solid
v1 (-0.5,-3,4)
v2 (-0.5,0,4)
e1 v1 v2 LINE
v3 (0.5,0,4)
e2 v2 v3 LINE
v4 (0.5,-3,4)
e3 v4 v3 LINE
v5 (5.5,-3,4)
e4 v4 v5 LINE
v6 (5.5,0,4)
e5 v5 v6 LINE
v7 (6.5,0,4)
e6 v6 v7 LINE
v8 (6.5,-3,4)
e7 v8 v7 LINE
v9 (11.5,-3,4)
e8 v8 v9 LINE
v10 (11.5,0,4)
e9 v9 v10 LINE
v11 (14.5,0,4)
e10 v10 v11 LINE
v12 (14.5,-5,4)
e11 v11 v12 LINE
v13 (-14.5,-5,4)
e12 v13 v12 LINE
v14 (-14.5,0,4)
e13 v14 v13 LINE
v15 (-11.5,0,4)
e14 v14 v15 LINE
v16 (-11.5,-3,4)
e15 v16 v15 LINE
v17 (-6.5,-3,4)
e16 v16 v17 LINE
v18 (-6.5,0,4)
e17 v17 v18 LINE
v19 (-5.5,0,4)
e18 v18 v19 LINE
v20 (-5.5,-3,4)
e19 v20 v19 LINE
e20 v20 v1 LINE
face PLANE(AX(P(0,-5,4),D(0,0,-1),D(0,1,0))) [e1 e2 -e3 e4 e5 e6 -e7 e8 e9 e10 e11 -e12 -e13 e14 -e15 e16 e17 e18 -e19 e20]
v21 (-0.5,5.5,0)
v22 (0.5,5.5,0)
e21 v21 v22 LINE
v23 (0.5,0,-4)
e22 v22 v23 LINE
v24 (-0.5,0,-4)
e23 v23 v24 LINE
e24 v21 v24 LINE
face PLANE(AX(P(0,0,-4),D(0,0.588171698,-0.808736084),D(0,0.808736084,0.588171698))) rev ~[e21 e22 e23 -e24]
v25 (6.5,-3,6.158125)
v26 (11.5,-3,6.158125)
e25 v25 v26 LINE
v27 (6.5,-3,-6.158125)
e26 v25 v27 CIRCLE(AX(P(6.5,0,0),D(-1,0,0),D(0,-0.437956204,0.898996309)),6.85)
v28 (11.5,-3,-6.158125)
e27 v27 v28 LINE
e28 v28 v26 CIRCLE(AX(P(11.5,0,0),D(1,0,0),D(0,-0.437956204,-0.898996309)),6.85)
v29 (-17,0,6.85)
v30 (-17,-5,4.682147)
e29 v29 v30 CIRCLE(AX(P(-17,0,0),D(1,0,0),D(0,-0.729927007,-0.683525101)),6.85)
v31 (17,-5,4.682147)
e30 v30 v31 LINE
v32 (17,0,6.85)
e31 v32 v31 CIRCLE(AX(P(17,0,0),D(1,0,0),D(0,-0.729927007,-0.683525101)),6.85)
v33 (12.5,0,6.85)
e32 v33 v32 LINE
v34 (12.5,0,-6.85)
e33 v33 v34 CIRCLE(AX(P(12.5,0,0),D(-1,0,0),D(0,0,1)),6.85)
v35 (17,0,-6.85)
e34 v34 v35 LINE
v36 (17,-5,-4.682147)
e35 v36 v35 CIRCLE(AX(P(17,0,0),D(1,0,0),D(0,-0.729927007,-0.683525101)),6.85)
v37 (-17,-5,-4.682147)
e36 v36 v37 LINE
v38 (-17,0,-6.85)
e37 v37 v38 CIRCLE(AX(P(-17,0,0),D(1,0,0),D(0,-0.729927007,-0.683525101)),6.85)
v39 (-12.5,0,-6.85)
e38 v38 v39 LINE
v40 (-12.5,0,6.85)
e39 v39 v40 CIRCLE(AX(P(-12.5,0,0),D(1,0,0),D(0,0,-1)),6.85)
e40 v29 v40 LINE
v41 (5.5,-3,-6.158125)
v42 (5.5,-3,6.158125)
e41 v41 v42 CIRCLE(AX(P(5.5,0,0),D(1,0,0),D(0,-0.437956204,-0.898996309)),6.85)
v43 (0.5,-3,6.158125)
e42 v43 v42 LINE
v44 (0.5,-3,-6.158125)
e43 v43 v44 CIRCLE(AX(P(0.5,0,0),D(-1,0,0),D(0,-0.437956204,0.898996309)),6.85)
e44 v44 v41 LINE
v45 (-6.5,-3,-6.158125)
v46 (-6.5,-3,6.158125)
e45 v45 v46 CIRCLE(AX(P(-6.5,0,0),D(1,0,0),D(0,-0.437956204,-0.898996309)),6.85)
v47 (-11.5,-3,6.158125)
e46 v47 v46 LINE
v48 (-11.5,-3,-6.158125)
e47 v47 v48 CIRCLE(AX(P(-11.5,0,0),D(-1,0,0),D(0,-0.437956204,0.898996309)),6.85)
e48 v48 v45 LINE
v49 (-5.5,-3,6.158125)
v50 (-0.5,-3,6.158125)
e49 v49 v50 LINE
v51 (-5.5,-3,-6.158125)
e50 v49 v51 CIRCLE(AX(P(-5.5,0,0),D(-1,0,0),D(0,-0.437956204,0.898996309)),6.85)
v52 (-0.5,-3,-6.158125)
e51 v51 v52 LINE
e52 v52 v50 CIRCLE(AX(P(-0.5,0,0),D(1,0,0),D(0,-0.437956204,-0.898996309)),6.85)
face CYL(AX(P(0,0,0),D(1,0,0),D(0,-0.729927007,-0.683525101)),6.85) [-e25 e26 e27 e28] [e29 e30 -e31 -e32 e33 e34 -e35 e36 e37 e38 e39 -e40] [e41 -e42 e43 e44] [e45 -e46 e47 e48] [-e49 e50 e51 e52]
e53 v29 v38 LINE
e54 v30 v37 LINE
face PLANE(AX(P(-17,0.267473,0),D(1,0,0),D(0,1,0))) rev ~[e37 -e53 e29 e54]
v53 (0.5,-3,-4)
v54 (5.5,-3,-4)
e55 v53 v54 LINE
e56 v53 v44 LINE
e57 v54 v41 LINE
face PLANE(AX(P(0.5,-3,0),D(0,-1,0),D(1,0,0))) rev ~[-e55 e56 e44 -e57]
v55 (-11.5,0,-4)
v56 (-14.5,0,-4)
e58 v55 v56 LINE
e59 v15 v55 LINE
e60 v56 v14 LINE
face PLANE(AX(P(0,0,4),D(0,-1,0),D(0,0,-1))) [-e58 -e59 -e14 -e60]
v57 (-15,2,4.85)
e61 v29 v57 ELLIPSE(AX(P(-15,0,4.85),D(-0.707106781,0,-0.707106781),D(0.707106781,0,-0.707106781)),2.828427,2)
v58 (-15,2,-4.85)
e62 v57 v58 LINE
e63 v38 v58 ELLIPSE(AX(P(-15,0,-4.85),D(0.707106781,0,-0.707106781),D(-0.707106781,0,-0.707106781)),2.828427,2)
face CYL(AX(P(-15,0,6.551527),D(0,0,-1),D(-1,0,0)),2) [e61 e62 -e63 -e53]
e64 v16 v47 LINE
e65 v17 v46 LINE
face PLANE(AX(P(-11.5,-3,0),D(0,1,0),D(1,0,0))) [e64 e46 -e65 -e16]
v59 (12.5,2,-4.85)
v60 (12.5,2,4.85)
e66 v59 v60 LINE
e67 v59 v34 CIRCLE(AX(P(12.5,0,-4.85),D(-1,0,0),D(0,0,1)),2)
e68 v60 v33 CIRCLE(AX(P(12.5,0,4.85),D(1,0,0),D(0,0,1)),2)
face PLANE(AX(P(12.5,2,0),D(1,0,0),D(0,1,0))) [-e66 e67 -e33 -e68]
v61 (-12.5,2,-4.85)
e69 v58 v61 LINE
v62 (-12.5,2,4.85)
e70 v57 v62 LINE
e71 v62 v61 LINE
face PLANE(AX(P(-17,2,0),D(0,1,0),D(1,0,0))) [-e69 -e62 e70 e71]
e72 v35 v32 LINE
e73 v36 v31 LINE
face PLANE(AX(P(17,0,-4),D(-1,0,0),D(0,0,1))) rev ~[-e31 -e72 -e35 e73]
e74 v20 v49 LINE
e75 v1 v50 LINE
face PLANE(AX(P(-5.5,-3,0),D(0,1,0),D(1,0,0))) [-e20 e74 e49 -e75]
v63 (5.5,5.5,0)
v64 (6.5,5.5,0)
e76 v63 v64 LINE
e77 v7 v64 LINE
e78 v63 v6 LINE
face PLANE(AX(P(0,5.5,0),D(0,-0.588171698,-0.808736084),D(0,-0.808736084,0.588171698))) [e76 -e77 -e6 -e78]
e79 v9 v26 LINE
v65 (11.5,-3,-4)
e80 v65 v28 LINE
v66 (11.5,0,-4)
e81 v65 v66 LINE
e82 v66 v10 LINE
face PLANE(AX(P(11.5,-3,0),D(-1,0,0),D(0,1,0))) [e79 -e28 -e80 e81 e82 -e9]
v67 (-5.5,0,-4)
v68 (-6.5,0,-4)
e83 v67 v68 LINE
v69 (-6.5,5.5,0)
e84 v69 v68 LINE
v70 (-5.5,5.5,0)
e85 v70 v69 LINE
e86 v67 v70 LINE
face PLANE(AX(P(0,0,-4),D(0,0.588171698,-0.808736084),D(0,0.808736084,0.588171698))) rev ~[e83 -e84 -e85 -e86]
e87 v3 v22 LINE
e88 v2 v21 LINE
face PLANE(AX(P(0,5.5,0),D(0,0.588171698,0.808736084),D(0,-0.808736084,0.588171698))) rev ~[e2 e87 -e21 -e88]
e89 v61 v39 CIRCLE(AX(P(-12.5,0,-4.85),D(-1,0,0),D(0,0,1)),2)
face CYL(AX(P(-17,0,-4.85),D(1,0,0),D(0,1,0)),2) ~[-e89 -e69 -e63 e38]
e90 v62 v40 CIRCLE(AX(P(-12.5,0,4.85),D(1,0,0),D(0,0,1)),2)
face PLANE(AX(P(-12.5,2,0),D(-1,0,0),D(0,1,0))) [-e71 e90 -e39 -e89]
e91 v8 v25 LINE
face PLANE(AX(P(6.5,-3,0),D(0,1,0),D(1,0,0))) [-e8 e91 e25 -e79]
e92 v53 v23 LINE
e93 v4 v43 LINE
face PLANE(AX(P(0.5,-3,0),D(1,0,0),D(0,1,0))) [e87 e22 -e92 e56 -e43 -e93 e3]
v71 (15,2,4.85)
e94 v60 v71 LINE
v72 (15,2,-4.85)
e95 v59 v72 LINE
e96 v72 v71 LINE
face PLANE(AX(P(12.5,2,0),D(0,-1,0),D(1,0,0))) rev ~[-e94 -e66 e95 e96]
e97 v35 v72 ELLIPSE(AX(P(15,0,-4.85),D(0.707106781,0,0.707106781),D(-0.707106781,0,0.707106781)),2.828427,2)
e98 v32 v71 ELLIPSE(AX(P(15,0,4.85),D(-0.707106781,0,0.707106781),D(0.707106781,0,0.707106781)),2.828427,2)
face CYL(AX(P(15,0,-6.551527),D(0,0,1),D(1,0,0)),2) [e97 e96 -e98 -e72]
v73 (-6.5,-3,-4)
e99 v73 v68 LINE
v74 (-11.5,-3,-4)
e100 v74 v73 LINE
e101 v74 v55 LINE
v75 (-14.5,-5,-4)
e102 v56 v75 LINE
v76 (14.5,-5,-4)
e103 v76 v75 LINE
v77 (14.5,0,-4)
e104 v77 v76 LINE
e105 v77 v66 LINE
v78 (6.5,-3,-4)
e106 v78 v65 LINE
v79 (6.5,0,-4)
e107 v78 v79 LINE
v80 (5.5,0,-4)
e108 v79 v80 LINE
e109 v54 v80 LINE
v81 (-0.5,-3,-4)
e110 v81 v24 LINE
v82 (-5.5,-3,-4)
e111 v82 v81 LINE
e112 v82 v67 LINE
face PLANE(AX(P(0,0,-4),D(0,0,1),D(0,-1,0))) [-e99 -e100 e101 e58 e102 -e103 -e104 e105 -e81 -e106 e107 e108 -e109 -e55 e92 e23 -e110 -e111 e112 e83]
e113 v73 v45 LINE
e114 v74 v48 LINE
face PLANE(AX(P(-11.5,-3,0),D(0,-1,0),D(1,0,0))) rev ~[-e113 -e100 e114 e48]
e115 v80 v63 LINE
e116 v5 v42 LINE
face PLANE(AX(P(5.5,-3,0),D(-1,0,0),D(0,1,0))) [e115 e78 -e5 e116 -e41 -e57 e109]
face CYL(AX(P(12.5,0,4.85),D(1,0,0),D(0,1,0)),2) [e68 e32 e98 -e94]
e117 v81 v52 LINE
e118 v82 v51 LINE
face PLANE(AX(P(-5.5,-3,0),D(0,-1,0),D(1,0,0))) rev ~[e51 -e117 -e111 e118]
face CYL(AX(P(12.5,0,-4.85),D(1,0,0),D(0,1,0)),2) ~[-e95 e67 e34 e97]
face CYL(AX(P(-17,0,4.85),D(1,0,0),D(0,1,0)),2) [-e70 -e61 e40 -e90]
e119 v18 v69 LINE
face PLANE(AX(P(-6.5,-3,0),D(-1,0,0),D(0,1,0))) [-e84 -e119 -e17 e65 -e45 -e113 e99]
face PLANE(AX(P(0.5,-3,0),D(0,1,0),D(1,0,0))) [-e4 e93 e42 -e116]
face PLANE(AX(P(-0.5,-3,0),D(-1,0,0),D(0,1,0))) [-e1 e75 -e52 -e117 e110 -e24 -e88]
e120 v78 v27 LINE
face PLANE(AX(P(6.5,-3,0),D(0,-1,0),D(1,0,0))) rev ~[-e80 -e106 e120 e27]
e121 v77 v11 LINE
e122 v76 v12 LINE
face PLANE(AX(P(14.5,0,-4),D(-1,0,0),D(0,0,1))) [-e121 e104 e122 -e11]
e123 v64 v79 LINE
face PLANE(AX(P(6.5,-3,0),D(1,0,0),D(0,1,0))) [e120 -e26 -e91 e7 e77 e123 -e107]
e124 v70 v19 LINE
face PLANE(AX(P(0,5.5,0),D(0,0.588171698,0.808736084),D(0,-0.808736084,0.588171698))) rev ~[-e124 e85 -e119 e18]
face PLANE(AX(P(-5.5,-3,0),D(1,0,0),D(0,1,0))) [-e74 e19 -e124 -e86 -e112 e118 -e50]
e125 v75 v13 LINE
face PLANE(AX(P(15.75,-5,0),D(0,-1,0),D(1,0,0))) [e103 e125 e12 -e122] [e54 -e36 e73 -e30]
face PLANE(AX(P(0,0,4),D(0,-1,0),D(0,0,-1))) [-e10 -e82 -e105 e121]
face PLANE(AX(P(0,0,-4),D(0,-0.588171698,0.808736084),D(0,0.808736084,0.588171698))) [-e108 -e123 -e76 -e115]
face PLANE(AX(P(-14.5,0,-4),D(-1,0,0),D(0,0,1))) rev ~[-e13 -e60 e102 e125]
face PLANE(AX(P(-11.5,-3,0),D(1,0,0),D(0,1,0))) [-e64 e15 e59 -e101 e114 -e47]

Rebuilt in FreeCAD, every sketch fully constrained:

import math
import FreeCAD as App
import Part
import Sketcher

V = App.Vector


def edges_at(feature, points):
    """Names of the edges that pass closest to the given points."""
    edges = feature.Shape.Edges
    near = lambda p: min(range(len(edges)), key=lambda i: edges[i].distToShape(Part.Vertex(*p))[0])
    return sorted({f"Edge{near(p) + 1}" for p in points})


def add_polygon(sketch, points):
    """Adds a closed chain of lines whose ends are joined by coincident constraints."""
    first, n = sketch.GeometryCount, len(points)
    for a, b in zip(points, points[1:] + points[:1]):
        sketch.addGeometry(Part.LineSegment(App.Vector(*a, 0), App.Vector(*b, 0)), False)
    for i in range(n):
        sketch.addConstraint(Sketcher.Constraint("Coincident", first + i, 2, first + (i + 1) % n, 1))

doc = App.newDocument("Part")
body = doc.addObject("PartDesign::Body", "Body")

# Sketch on YZ plane
sketch1 = body.newObject("Sketcher::SketchObject", "Sketch")
sketch1.AttachmentSupport = (doc.getObject("YZ_Plane"), [""])
sketch1.MapMode = "FlatFace"
sketch1.addGeometry(Part.ArcOfCircle(Part.Circle(V(0, 0, 0), V(0, 0, 1), 6.85), math.radians(-136.880275), math.radians(136.880275)), False)
sketch1.addGeometry(Part.LineSegment(V(-5, 4.682147, 0), V(-5, 4, 0)), False)
sketch1.addGeometry(Part.LineSegment(V(-5, 4, 0), V(0, 4, 0)), False)
sketch1.addGeometry(Part.LineSegment(V(0, 4, 0), V(0, -4, 0)), False)
sketch1.addGeometry(Part.LineSegment(V(0, -4, 0), V(-5, -4, 0)), False)
sketch1.addGeometry(Part.LineSegment(V(-5, -4, 0), V(-5, -4.682147, 0)), False)
sketch1.addConstraint(Sketcher.Constraint("Coincident", 0, 2, 1, 1))
sketch1.addConstraint(Sketcher.Constraint("Coincident", 1, 2, 2, 1))
sketch1.addConstraint(Sketcher.Constraint("Coincident", 2, 2, 3, 1))
sketch1.addConstraint(Sketcher.Constraint("Coincident", 3, 2, 4, 1))
sketch1.addConstraint(Sketcher.Constraint("Coincident", 4, 2, 5, 1))
sketch1.addConstraint(Sketcher.Constraint("Coincident", 5, 2, 0, 1))
sketch1.addConstraint(Sketcher.Constraint("Vertical", 1))
sketch1.addConstraint(Sketcher.Constraint("Horizontal", 2))
sketch1.addConstraint(Sketcher.Constraint("Vertical", 3))
sketch1.addConstraint(Sketcher.Constraint("Horizontal", 4))
sketch1.addConstraint(Sketcher.Constraint("Vertical", 5))
sketch1.addConstraint(Sketcher.Constraint("Coincident", 0, 3, -1, 1))
sketch1.addConstraint(Sketcher.Constraint("Symmetric", 2, 2, 3, 2, -1, 1))
sketch1.addConstraint(Sketcher.Constraint("Vertical", 1, 2, 4, 2))
sketch1.addConstraint(Sketcher.Constraint("DistanceX", 2, 1, 2, 2, 5.0))
sketch1.addConstraint(Sketcher.Constraint("DistanceY", 3, 2, 3, 1, 8.0))
sketch1.addConstraint(Sketcher.Constraint("Radius", 0, 6.85))
pad1 = body.newObject("PartDesign::Pad", "Pad")
pad1.Profile = sketch1
pad1.Type = "TwoLengths"
pad1.Length = 17
pad1.Length2 = 17

# Sketch on XY plane
sketch2 = body.newObject("Sketcher::SketchObject", "Sketch001")
sketch2.AttachmentSupport = (doc.getObject("XY_Plane"), [""])
sketch2.MapMode = "FlatFace"
add_polygon(sketch2, [(-11.5, 14), (-11.5, -3), (-6.5, -3), (-6.5, 14)])  # lines 0-3
add_polygon(sketch2, [(-5.5, 14), (-5.5, -3), (-0.5, -3), (-0.5, 14)])  # lines 4-7
add_polygon(sketch2, [(0.5, 14), (0.5, -3), (5.5, -3), (5.5, 14)])  # lines 8-11
add_polygon(sketch2, [(6.5, 14), (6.5, -3), (11.5, -3), (11.5, 14)])  # lines 12-15
sketch2.addConstraint(Sketcher.Constraint("Vertical", 0))
sketch2.addConstraint(Sketcher.Constraint("Horizontal", 1))
sketch2.addConstraint(Sketcher.Constraint("Vertical", 2))
sketch2.addConstraint(Sketcher.Constraint("Horizontal", 3))
sketch2.addConstraint(Sketcher.Constraint("Vertical", 4))
sketch2.addConstraint(Sketcher.Constraint("Horizontal", 5))
sketch2.addConstraint(Sketcher.Constraint("Vertical", 6))
sketch2.addConstraint(Sketcher.Constraint("Horizontal", 7))
sketch2.addConstraint(Sketcher.Constraint("Vertical", 8))
sketch2.addConstraint(Sketcher.Constraint("Horizontal", 9))
sketch2.addConstraint(Sketcher.Constraint("Vertical", 10))
sketch2.addConstraint(Sketcher.Constraint("Horizontal", 11))
sketch2.addConstraint(Sketcher.Constraint("Vertical", 12))
sketch2.addConstraint(Sketcher.Constraint("Horizontal", 13))
sketch2.addConstraint(Sketcher.Constraint("Vertical", 14))
sketch2.addConstraint(Sketcher.Constraint("Horizontal", 15))
sketch2.addConstraint(Sketcher.Constraint("Symmetric", 5, 2, 8, 2, -2))
sketch2.addConstraint(Sketcher.Constraint("Symmetric", 7, 2, 10, 2, -2))
sketch2.addConstraint(Sketcher.Constraint("Symmetric", 1, 2, 12, 2, -2))
sketch2.addConstraint(Sketcher.Constraint("Symmetric", 3, 2, 14, 2, -2))
sketch2.addConstraint(Sketcher.Constraint("Horizontal", 1, 2, 4, 2))
sketch2.addConstraint(Sketcher.Constraint("Horizontal", 3, 2, 6, 2))
sketch2.addConstraint(Sketcher.Constraint("Equal", 3, 5))
sketch2.addConstraint(Sketcher.Constraint("DistanceX", 1, 1, 1, 2, 5.0))
sketch2.addConstraint(Sketcher.Constraint("DistanceY", 0, 2, 0, 1, 17.0))
sketch2.addConstraint(Sketcher.Constraint("DistanceY", 0, 2, -1, 1, 3.0))
sketch2.addConstraint(Sketcher.Constraint("DistanceX", 1, 2, 4, 2, 1.0))
sketch2.addConstraint(Sketcher.Constraint("DistanceX", 5, 2, 8, 2, 1.0))
pocket1 = body.newObject("PartDesign::Pocket", "Pocket")
pocket1.Profile = sketch2
pocket1.Type = "ThroughAll"
pocket1.Midplane = True

# Sketch on YZ plane
sketch3 = body.newObject("Sketcher::SketchObject", "Sketch002")
sketch3.AttachmentSupport = (doc.getObject("YZ_Plane"), [""])
sketch3.MapMode = "FlatFace"
add_polygon(sketch3, [(0, -4), (5.5, 0), (0, 4)])  # lines 0-2
sketch3.addConstraint(Sketcher.Constraint("Vertical", 2))
sketch3.addConstraint(Sketcher.Constraint("Symmetric", 1, 2, 2, 2, -1, 1))
sketch3.addConstraint(Sketcher.Constraint("PointOnObject", 0, 2, -1))
sketch3.addConstraint(Sketcher.Constraint("DistanceY", 2, 2, 2, 1, 8.0))
sketch3.addConstraint(Sketcher.Constraint("DistanceX", -1, 1, 0, 2, 5.5))
pocket2 = body.newObject("PartDesign::Pocket", "Pocket001")
pocket2.Profile = sketch3
pocket2.Type = "TwoLengths"
pocket2.Length = 10
pocket2.Length2 = 10

# Sketch on XZ plane
sketch4 = body.newObject("Sketcher::SketchObject", "Sketch003")
sketch4.AttachmentSupport = (doc.getObject("XZ_Plane"), [""])
sketch4.MapMode = "FlatFace"
add_polygon(sketch4, [(14.5, 4), (14.5, -4), (17, -4), (17, 4)])  # lines 0-3
add_polygon(sketch4, [(-17, 4), (-17, -4), (-14.5, -4), (-14.5, 4)])  # lines 4-7
sketch4.addConstraint(Sketcher.Constraint("Vertical", 0))
sketch4.addConstraint(Sketcher.Constraint("Horizontal", 1))
sketch4.addConstraint(Sketcher.Constraint("Vertical", 2))
sketch4.addConstraint(Sketcher.Constraint("Horizontal", 3))
sketch4.addConstraint(Sketcher.Constraint("Vertical", 4))
sketch4.addConstraint(Sketcher.Constraint("Horizontal", 5))
sketch4.addConstraint(Sketcher.Constraint("Vertical", 6))
sketch4.addConstraint(Sketcher.Constraint("Horizontal", 7))
sketch4.addConstraint(Sketcher.Constraint("Symmetric", 2, 2, 4, 2, -1, 1))
sketch4.addConstraint(Sketcher.Constraint("Symmetric", 0, 2, 6, 2, -1, 1))
sketch4.addConstraint(Sketcher.Constraint("Horizontal", 1, 2, 4, 2))
sketch4.addConstraint(Sketcher.Constraint("DistanceY", 0, 2, 0, 1, 8.0))
sketch4.addConstraint(Sketcher.Constraint("DistanceX", 1, 1, 1, 2, 2.5))
sketch4.addConstraint(Sketcher.Constraint("DistanceX", -1, 1, 1, 2, 17.0))
pad2 = body.newObject("PartDesign::Pad", "Pad001")
pad2.Profile = sketch4
pad2.Length = 5

# Sketch on XY plane
sketch5 = body.newObject("Sketcher::SketchObject", "Sketch004")
sketch5.AttachmentSupport = (doc.getObject("XY_Plane"), [""])
sketch5.MapMode = "FlatFace"
add_polygon(sketch5, [(-17, 9), (-17, 2), (-12.5, 2), (-12.5, 9)])  # lines 0-3
add_polygon(sketch5, [(12.5, 9), (12.5, 2), (17, 2), (17, 9)])  # lines 4-7
sketch5.addConstraint(Sketcher.Constraint("Vertical", 0))
sketch5.addConstraint(Sketcher.Constraint("Horizontal", 1))
sketch5.addConstraint(Sketcher.Constraint("Vertical", 2))
sketch5.addConstraint(Sketcher.Constraint("Horizontal", 3))
sketch5.addConstraint(Sketcher.Constraint("Vertical", 4))
sketch5.addConstraint(Sketcher.Constraint("Horizontal", 5))
sketch5.addConstraint(Sketcher.Constraint("Vertical", 6))
sketch5.addConstraint(Sketcher.Constraint("Horizontal", 7))
sketch5.addConstraint(Sketcher.Constraint("Symmetric", 1, 2, 4, 2, -2))
sketch5.addConstraint(Sketcher.Constraint("Symmetric", 3, 2, 6, 2, -2))
sketch5.addConstraint(Sketcher.Constraint("DistanceY", 0, 2, 0, 1, 7.0))
sketch5.addConstraint(Sketcher.Constraint("DistanceX", 1, 1, 1, 2, 4.5))
sketch5.addConstraint(Sketcher.Constraint("DistanceX", 0, 2, -1, 1, 17.0))
sketch5.addConstraint(Sketcher.Constraint("DistanceY", -1, 1, 0, 2, 2.0))
pocket3 = body.newObject("PartDesign::Pocket", "Pocket002")
pocket3.Profile = sketch5
pocket3.Type = "ThroughAll"
pocket3.Midplane = True
doc.recompute()

fillet = body.newObject("PartDesign::Fillet", "Fillet")
fillet.Base = (pocket3, edges_at(pocket3, [
    (17, 2, 0),
    (-17, 2, 0),
    (14.75, 2, 6.552),
    (14.75, 2, -6.552),
    (-14.75, 2, -6.552),
    (-14.75, 2, 6.552),
]))
fillet.Radius = 2

doc.recompute()
